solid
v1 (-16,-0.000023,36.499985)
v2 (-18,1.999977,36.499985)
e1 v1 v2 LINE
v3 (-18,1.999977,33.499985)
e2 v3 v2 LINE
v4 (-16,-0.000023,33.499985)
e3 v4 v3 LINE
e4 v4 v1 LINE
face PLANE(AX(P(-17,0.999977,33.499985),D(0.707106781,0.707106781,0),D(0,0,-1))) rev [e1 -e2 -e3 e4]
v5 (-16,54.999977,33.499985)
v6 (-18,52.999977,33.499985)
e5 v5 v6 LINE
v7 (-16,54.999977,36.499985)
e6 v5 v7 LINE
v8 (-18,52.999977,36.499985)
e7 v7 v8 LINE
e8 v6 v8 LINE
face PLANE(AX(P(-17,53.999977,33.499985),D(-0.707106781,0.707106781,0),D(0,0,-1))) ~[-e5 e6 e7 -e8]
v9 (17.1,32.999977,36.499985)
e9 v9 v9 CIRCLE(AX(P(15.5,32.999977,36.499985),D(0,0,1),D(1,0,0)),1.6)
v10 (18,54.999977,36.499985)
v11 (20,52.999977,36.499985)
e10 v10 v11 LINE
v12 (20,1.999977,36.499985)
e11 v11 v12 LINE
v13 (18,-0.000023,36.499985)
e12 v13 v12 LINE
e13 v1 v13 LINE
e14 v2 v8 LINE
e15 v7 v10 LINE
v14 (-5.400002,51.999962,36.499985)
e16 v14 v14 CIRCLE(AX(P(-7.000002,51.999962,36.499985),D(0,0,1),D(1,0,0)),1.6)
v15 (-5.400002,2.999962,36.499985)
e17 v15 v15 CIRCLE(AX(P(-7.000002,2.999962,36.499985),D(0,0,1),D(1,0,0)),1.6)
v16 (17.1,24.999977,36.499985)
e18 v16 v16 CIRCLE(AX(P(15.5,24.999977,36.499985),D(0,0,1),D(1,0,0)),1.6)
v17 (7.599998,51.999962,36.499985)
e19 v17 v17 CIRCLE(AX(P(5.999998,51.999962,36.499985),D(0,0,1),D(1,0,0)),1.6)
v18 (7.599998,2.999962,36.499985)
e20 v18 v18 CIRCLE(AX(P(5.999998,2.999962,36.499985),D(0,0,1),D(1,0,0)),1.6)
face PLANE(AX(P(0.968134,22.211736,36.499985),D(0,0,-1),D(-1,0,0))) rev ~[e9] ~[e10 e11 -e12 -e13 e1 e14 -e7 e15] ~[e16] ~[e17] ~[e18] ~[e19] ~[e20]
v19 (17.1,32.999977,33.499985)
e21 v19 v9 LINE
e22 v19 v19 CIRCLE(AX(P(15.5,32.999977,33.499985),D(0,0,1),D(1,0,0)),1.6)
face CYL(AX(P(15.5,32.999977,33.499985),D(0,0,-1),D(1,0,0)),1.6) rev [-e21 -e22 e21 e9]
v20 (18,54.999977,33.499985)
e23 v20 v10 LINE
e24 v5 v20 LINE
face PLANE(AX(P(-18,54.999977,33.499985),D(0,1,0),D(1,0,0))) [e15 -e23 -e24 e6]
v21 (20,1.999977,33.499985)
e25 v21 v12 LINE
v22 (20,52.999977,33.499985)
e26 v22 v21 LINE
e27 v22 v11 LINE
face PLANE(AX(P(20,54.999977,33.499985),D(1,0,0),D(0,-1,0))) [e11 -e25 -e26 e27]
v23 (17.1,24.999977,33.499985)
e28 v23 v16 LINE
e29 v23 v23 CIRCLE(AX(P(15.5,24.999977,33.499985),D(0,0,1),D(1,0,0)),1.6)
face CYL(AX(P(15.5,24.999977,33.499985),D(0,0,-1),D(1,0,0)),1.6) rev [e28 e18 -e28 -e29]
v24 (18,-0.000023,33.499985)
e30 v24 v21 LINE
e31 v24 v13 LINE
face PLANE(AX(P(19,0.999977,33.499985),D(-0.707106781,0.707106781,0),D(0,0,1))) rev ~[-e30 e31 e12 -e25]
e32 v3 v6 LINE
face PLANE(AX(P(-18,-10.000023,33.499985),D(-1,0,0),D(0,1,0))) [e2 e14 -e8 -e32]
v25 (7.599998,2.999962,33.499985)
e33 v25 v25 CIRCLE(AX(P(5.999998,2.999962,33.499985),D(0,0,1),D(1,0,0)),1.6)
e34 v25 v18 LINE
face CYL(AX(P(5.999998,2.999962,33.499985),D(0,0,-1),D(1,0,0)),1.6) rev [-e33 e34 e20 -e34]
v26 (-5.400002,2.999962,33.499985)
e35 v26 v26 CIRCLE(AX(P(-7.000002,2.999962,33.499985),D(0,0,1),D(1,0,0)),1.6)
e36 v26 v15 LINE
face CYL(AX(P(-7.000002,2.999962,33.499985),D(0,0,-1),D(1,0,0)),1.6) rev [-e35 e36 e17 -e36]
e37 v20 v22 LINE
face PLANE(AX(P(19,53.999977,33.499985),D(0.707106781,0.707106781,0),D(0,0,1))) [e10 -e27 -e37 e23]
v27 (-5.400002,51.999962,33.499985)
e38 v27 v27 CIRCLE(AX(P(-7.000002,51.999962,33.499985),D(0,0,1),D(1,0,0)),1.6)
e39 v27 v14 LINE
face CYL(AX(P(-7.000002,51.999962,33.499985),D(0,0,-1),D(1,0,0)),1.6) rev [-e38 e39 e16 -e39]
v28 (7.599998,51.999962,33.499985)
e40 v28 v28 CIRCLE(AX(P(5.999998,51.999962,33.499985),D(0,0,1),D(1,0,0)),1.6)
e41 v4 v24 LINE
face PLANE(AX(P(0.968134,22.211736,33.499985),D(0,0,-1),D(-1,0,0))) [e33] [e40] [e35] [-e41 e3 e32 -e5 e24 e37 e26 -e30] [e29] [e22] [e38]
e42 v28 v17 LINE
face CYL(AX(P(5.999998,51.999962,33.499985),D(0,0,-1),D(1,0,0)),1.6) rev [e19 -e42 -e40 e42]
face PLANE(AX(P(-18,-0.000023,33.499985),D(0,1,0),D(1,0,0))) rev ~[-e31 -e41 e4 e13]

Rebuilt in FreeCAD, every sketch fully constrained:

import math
import FreeCAD as App
import Part
import Sketcher
from FreeCAD import Vector
Q = App.Units.Quantity


def edges_at(feature, points):
    """Names of the edges that pass closest to the given points."""
    edges = feature.Shape.Edges
    near = lambda p: min(range(len(edges)), key=lambda i: edges[i].distToShape(Part.Vertex(*p))[0])
    return sorted({f"Edge{near(p) + 1}" for p in points})

doc = App.newDocument("Part")
body = doc.addObject("PartDesign::Body", "Body")

sketch1 = body.newObject("Sketcher::SketchObject", "Sketch")
sketch1.AttachmentSupport = (doc.getObject("XY_Plane"), [""])
sketch1.MapMode = "FlatFace"
sketch1.addGeometry(Part.LineSegment(Vector(20, 55, 0), Vector(-18, 55, 0)), False)
sketch1.addGeometry(Part.LineSegment(Vector(-18, 55, 0), Vector(-18, -10, 0)), False)
sketch1.addGeometry(Part.LineSegment(Vector(-18, -10, 0), Vector(-14, -10, 0)), False)
sketch1.addGeometry(Part.ArcOfCircle(Part.Circle(Vector(-13.000001, -9.999999, 0), Vector(0, 0, 1), 0.999999), math.radians(89.999957), math.radians(180.000043)), False)
sketch1.addGeometry(Part.LineSegment(Vector(-13, -9, 0), Vector(-9, -9, 0)), False)
sketch1.addGeometry(Part.ArcOfCircle(Part.Circle(Vector(-8.999999, -9.999999, 0), Vector(0, 0, 1), 0.999999), math.radians(-0.000043), math.radians(90.000043)), False)
sketch1.addGeometry(Part.LineSegment(Vector(-8, -10, 0), Vector(4, -10, 0)), False)
sketch1.addGeometry(Part.ArcOfCircle(Part.Circle(Vector(4.999999, -9.999999, 0), Vector(0, 0, 1), 0.999999), math.radians(89.999957), math.radians(180.000043)), False)
sketch1.addGeometry(Part.LineSegment(Vector(5, -9, 0), Vector(9, -9, 0)), False)
sketch1.addGeometry(Part.ArcOfCircle(Part.Circle(Vector(9.000001, -9.999999, 0), Vector(0, 0, 1), 0.999999), math.radians(-0.000043), math.radians(90.000043)), False)
sketch1.addGeometry(Part.LineSegment(Vector(10, -10, 0), Vector(20, -10, 0)), False)
sketch1.addGeometry(Part.LineSegment(Vector(20, -10, 0), Vector(20, 55, 0)), False)
sketch1.addGeometry(Part.LineSegment(Vector(5, -2, 0), Vector(9, -2, 0)), False)
sketch1.addGeometry(Part.ArcOfCircle(Part.Circle(Vector(9, -3, 0), Vector(0, 0, 1), 1), math.radians(-90), math.radians(90)), False)
sketch1.addGeometry(Part.LineSegment(Vector(9, -4, 0), Vector(5, -4, 0)), False)
sketch1.addGeometry(Part.ArcOfCircle(Part.Circle(Vector(5, -3, 0), Vector(0, 0, 1), 1), math.radians(90), math.radians(270)), False)
sketch1.addGeometry(Part.Circle(Vector(5.999998, 2.999985, 0), Vector(0, 0, 1), 1.6), False)
sketch1.addGeometry(Part.Circle(Vector(-7.000002, 2.999985, 0), Vector(0, 0, 1), 1.6), False)
sketch1.addGeometry(Part.LineSegment(Vector(-13, -2, 0), Vector(-9, -2, 0)), False)
sketch1.addGeometry(Part.ArcOfCircle(Part.Circle(Vector(-9, -3, 0), Vector(0, 0, 1), 1), math.radians(-90), math.radians(90)), False)
sketch1.addGeometry(Part.LineSegment(Vector(-9, -4, 0), Vector(-13, -4, 0)), False)
sketch1.addGeometry(Part.ArcOfCircle(Part.Circle(Vector(-13, -3, 0), Vector(0, 0, 1), 1), math.radians(90), math.radians(270)), False)
sketch1.addGeometry(Part.Circle(Vector(15.5, 25, 0), Vector(0, 0, 1), 1.6), False)
sketch1.addGeometry(Part.Circle(Vector(15.5, 33, 0), Vector(0, 0, 1), 1.6), False)
sketch1.addGeometry(Part.Circle(Vector(5.999998, 51.999985, 0), Vector(0, 0, 1), 1.6), False)
sketch1.addGeometry(Part.Circle(Vector(-7.000002, 51.999985, 0), Vector(0, 0, 1), 1.6), False)
sketch1.addConstraint(Sketcher.Constraint("Coincident", 0, 2, 1, 1))
sketch1.addConstraint(Sketcher.Constraint("Coincident", 1, 2, 2, 1))
sketch1.addConstraint(Sketcher.Constraint("Coincident", 2, 2, 3, 2))
sketch1.addConstraint(Sketcher.Constraint("Tangent", 3, 1, 4, 1))
sketch1.addConstraint(Sketcher.Constraint("Tangent", 4, 2, 5, 2))
sketch1.addConstraint(Sketcher.Constraint("Coincident", 5, 1, 6, 1))
sketch1.addConstraint(Sketcher.Constraint("Coincident", 6, 2, 7, 2))
sketch1.addConstraint(Sketcher.Constraint("Tangent", 7, 1, 8, 1))
sketch1.addConstraint(Sketcher.Constraint("Tangent", 8, 2, 9, 2))
sketch1.addConstraint(Sketcher.Constraint("Coincident", 9, 1, 10, 1))
sketch1.addConstraint(Sketcher.Constraint("Coincident", 10, 2, 11, 1))
sketch1.addConstraint(Sketcher.Constraint("Coincident", 11, 2, 0, 1))
sketch1.addConstraint(Sketcher.Constraint("Tangent", 12, 2, 13, 2))
sketch1.addConstraint(Sketcher.Constraint("Tangent", 13, 1, 14, 1))
sketch1.addConstraint(Sketcher.Constraint("Tangent", 14, 2, 15, 2))
sketch1.addConstraint(Sketcher.Constraint("Tangent", 15, 1, 12, 1))
sketch1.addConstraint(Sketcher.Constraint("Tangent", 18, 2, 19, 2))
sketch1.addConstraint(Sketcher.Constraint("Tangent", 19, 1, 20, 1))
sketch1.addConstraint(Sketcher.Constraint("Tangent", 20, 2, 21, 2))
sketch1.addConstraint(Sketcher.Constraint("Tangent", 21, 1, 18, 1))
sketch1.addConstraint(Sketcher.Constraint("Horizontal", 0))
sketch1.addConstraint(Sketcher.Constraint("Vertical", 1))
sketch1.addConstraint(Sketcher.Constraint("Horizontal", 2))
sketch1.addConstraint(Sketcher.Constraint("Horizontal", 4))
sketch1.addConstraint(Sketcher.Constraint("Horizontal", 6))
sketch1.addConstraint(Sketcher.Constraint("Horizontal", 8))
sketch1.addConstraint(Sketcher.Constraint("Horizontal", 10))
sketch1.addConstraint(Sketcher.Constraint("Vertical", 11))
sketch1.addConstraint(Sketcher.Constraint("Horizontal", 12))
sketch1.addConstraint(Sketcher.Constraint("Horizontal", 14))
sketch1.addConstraint(Sketcher.Constraint("Horizontal", 18))
sketch1.addConstraint(Sketcher.Constraint("Horizontal", 20))
sketch1.addConstraint(Sketcher.Constraint("Equal", 3, 5))
sketch1.addConstraint(Sketcher.Constraint("Equal", 5, 7))
sketch1.addConstraint(Sketcher.Constraint("Equal", 7, 9))
sketch1.addConstraint(Sketcher.Constraint("Equal", 9, 13))
sketch1.addConstraint(Sketcher.Constraint("Equal", 16, 17))
sketch1.addConstraint(Sketcher.Constraint("Equal", 15, 19))
sketch1.addConstraint(Sketcher.Constraint("Equal", 17, 22))
sketch1.addConstraint(Sketcher.Constraint("Equal", 22, 23))
sketch1.addConstraint(Sketcher.Constraint("Equal", 23, 24))
sketch1.addConstraint(Sketcher.Constraint("Equal", 24, 25))
sketch1.addConstraint(Sketcher.Constraint("Symmetric", 5, 3, 9, 3, -2))
sketch1.addConstraint(Sketcher.Constraint("Symmetric", 13, 3, 19, 3, -2))
sketch1.addConstraint(Sketcher.Constraint("Horizontal", 16, 3, 17, 3))
sketch1.addConstraint(Sketcher.Constraint("Horizontal", 24, 3, 25, 3))
sketch1.addConstraint(Sketcher.Constraint("Horizontal", 9, 3, 1, 2))
sketch1.addConstraint(Sketcher.Constraint("Horizontal", 2, 2, 5, 1))
sketch1.addConstraint(Sketcher.Constraint("Horizontal", 6, 2, 9, 1))
sketch1.addConstraint(Sketcher.Constraint("Vertical", 9, 3, 13, 3))
sketch1.addConstraint(Sketcher.Constraint("Vertical", 7, 3, 15, 3))
sketch1.addConstraint(Sketcher.Constraint("Vertical", 3, 3, 21, 3))
sketch1.addConstraint(Sketcher.Constraint("Vertical", 22, 3, 23, 3))
sketch1.addConstraint(Sketcher.Constraint("Vertical", 16, 3, 24, 3))
sketch1.addConstraint(Sketcher.Constraint("Vertical", 17, 3, 25, 3))
sketch1.addConstraint(Sketcher.Constraint("Equal", 2, 4))
sketch1.addConstraint(Sketcher.Constraint("Equal", 4, 8))
sketch1.addConstraint(Sketcher.Constraint("Radius", 3, Q("0.999999 mm")))
sketch1.addConstraint(Sketcher.Constraint("Diameter", 16, Q("3.2 mm")))
sketch1.addConstraint(Sketcher.Constraint("DistanceX", 0, 2, 0, 1, Q("38 mm")))
sketch1.addConstraint(Sketcher.Constraint("DistanceX", 2, 1, 2, 2, Q("4 mm")))
sketch1.addConstraint(Sketcher.Constraint("DistanceX", 6, 1, 6, 2, Q("12 mm")))
sketch1.addConstraint(Sketcher.Constraint("DistanceY", 1, 2, 1, 1, Q("65 mm")))
sketch1.addConstraint(Sketcher.Constraint("DistanceY", 3, 3, -1, 1, Q("9.999999 mm")))
sketch1.addConstraint(Sketcher.Constraint("DistanceY", 13, 3, -1, 1, Q("3 mm")))
sketch1.addConstraint(Sketcher.Constraint("DistanceY", -1, 1, 22, 3, Q("25 mm")))
sketch1.addConstraint(Sketcher.Constraint("DistanceY", -1, 1, 23, 3, Q("33 mm")))
sketch1.addConstraint(Sketcher.Constraint("DistanceX", 7, 3, 16, 3, Q("0.999999 mm")))
sketch1.addConstraint(Sketcher.Constraint("DistanceX", 17, 3, 16, 3, Q("13 mm")))
sketch1.addConstraint(Sketcher.Constraint("DistanceY", 16, 3, 24, 3, Q("49 mm")))
sketch1.addConstraint(Sketcher.Constraint("DistanceX", -1, 1, 22, 3, Q("15.5 mm")))
sketch1.addConstraint(Sketcher.Constraint("DistanceY", -1, 1, 16, 3, Q("2.999985 mm")))
pad1 = body.newObject("PartDesign::Pad", "Pad")
pad1.Profile = sketch1
pad1.Length = 3
doc.recompute()

chamfer = body.newObject("PartDesign::Chamfer", "Chamfer")
chamfer.Base = (pad1, edges_at(pad1, [
    (-18, 55, 1.5),
    (20, 55, 1.5),
    (20, -10, 1.5),
    (-18, -10, 1.5),
]))
chamfer.Size = 2
doc.recompute()

fillet = body.newObject("PartDesign::Fillet", "Fillet")
fillet.Base = (chamfer, edges_at(chamfer, [
    (-14, -10, 1.5),
    (-8, -10, 1.5),
    (4, -10, 1.5),
    (10, -10, 1.5),
]))
fillet.Radius = 2

sketch2 = body.newObject("Sketcher::SketchObject", "Sketch001")
sketch2.AttachmentSupport = (doc.getObject("XY_Plane"), [""])
sketch2.MapMode = "FlatFace"
sketch2.addGeometry(Part.LineSegment(Vector(-18, 0, 0), Vector(-18, -10, 0)), False)
sketch2.addGeometry(Part.LineSegment(Vector(-18, -10, 0), Vector(20, -10, 0)), False)
sketch2.addGeometry(Part.LineSegment(Vector(20, -10, 0), Vector(20, 0, 0)), False)
sketch2.addGeometry(Part.LineSegment(Vector(20, 0, 0), Vector(-18, 0, 0)), False)
sketch2.addConstraint(Sketcher.Constraint("Coincident", 0, 2, 1, 1))
sketch2.addConstraint(Sketcher.Constraint("Coincident", 1, 2, 2, 1))
sketch2.addConstraint(Sketcher.Constraint("Coincident", 2, 2, 3, 1))
sketch2.addConstraint(Sketcher.Constraint("Coincident", 3, 2, 0, 1))
sketch2.addConstraint(Sketcher.Constraint("Vertical", 0))
sketch2.addConstraint(Sketcher.Constraint("Horizontal", 1))
sketch2.addConstraint(Sketcher.Constraint("Vertical", 2))
sketch2.addConstraint(Sketcher.Constraint("Horizontal", 3))
sketch2.addConstraint(Sketcher.Constraint("PointOnObject", 2, 2, -1))
sketch2.addConstraint(Sketcher.Constraint("DistanceX", 1, 1, 1, 2, Q("38 mm")))
sketch2.addConstraint(Sketcher.Constraint("DistanceY", 0, 2, 0, 1, Q("10 mm")))
sketch2.addConstraint(Sketcher.Constraint("DistanceX", 0, 2, -1, 1, Q("18 mm")))
pocket1 = body.newObject("PartDesign::Pocket", "Pocket")
pocket1.Profile = sketch2
pocket1.Type = "ThroughAll"
pocket1.Reversed = True
doc.recompute()

chamfer2 = body.newObject("PartDesign::Chamfer", "Chamfer001")
chamfer2.Base = (pocket1, edges_at(pocket1, [(-18, 0, 1.5), (20, 0, 1.5)]))
chamfer2.Size = 2
body2 = doc.addObject("PartDesign::Body", "Body001")
doc.recompute()

body.Placement = App.Placement(Vector(0, -0.000023, 33.499985), App.Rotation(Vector(0, 0, 1), 0))
boolean = body2.newObject("PartDesign::Boolean", "Boolean")
boolean.Type = "Fuse"
boolean.addObjects([body])

doc.recompute()
